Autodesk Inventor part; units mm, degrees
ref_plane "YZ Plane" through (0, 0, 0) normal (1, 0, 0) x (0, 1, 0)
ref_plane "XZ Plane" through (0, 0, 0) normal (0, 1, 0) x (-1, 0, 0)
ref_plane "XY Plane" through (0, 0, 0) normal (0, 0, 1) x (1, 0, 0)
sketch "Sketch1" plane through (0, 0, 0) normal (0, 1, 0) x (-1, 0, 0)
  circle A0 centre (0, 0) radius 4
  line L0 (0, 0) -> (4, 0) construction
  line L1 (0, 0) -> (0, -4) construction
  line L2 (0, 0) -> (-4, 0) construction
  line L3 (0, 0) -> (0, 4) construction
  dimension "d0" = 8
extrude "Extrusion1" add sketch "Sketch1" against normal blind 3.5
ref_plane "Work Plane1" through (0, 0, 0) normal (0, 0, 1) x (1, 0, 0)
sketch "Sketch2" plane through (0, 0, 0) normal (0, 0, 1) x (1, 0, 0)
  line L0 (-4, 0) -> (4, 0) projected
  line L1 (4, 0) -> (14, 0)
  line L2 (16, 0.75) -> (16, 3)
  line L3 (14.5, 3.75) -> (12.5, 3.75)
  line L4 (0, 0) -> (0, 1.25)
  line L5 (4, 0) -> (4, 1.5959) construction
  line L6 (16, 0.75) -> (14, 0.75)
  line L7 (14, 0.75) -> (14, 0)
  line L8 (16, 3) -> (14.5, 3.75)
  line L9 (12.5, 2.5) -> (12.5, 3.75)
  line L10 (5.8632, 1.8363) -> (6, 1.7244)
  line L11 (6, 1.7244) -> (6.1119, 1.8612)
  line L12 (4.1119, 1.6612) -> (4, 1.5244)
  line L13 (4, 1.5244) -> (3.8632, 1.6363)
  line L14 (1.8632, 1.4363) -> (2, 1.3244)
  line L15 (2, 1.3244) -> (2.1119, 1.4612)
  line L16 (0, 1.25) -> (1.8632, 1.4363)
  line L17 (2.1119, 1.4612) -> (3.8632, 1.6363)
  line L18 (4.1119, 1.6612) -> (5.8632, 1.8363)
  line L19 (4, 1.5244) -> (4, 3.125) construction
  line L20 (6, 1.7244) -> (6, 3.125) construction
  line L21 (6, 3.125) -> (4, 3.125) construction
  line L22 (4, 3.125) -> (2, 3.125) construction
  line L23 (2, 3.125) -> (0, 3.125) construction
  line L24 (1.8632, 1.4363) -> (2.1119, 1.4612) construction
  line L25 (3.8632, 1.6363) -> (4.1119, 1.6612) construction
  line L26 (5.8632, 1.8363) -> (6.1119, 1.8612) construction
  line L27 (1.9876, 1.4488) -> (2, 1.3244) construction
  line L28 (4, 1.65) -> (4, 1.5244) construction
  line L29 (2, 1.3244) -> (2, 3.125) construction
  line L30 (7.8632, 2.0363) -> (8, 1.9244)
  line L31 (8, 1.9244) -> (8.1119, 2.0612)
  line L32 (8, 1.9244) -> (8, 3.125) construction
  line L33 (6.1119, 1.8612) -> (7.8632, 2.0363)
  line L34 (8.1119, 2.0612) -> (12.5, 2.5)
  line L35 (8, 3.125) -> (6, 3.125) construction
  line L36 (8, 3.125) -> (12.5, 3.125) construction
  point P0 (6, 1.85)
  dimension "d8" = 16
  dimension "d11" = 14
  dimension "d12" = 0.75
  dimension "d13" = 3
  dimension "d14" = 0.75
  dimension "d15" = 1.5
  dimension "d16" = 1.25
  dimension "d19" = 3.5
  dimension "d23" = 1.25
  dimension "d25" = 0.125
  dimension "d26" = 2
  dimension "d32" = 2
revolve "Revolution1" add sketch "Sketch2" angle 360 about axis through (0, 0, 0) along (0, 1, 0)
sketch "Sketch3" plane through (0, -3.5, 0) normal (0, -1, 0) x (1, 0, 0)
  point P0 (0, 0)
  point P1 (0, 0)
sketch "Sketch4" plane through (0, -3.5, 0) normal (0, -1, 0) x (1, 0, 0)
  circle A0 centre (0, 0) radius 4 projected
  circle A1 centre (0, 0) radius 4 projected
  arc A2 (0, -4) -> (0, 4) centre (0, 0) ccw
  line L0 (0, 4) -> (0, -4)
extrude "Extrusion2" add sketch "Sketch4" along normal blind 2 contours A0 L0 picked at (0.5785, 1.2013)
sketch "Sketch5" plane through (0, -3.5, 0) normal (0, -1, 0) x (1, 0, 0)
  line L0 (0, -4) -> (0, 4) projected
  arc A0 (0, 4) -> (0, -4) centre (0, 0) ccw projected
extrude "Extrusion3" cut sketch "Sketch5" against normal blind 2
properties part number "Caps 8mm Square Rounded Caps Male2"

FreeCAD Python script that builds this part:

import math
import FreeCAD as App
import Part
import Sketcher
from FreeCAD import Vector
Q = App.Units.Quantity

doc = App.newDocument("Part")
body = doc.addObject("PartDesign::Body", "Body")

sketch1 = body.newObject("Sketcher::SketchObject", "Sketch")
sketch1.AttachmentSupport = (doc.getObject("XZ_Plane"), [""])
sketch1.MapMode = "FlatFace"
sketch1.addGeometry(Part.Circle(Vector(0, 0, 0), Vector(0, 0, 1), 4), False)
sketch1.addConstraint(Sketcher.Constraint("Coincident", 0, 3, -1, 1))
sketch1.addConstraint(Sketcher.Constraint("Diameter", 0, Q("8 mm")))
pad1 = body.newObject("PartDesign::Pad", "Pad")
pad1.Profile = sketch1
pad1.Length = 3.5

sketch2 = body.newObject("Sketcher::SketchObject", "Sketch001")
sketch2.AttachmentSupport = (doc.getObject("XY_Plane"), [""])
sketch2.MapMode = "FlatFace"
sketch2.addGeometry(Part.LineSegment(Vector(0, 1.25, 0), Vector(0, 0, 0)), False)
sketch2.addGeometry(Part.LineSegment(Vector(0, 0, 0), Vector(14, 0, 0)), False)
sketch2.addGeometry(Part.LineSegment(Vector(14, 0, 0), Vector(14, 0.75, 0)), False)
sketch2.addGeometry(Part.LineSegment(Vector(14, 0.75, 0), Vector(16, 0.75, 0)), False)
sketch2.addGeometry(Part.LineSegment(Vector(16, 0.75, 0), Vector(16, 3, 0)), False)
sketch2.addGeometry(Part.LineSegment(Vector(16, 3, 0), Vector(14.5, 3.75, 0)), False)
sketch2.addGeometry(Part.LineSegment(Vector(14.5, 3.75, 0), Vector(12.5, 3.75, 0)), False)
sketch2.addGeometry(Part.LineSegment(Vector(12.5, 3.75, 0), Vector(12.5, 2.5, 0)), False)
sketch2.addGeometry(Part.LineSegment(Vector(12.5, 2.5, 0), Vector(8.11, 2.06, 0)), False)
sketch2.addGeometry(Part.LineSegment(Vector(8.11, 2.06, 0), Vector(8, 1.92, 0)), False)
sketch2.addGeometry(Part.LineSegment(Vector(8, 1.92, 0), Vector(7.86, 2.04, 0)), False)
sketch2.addGeometry(Part.LineSegment(Vector(7.86, 2.04, 0), Vector(6.11, 1.86, 0)), False)
sketch2.addGeometry(Part.LineSegment(Vector(6.11, 1.86, 0), Vector(6, 1.72, 0)), False)
sketch2.addGeometry(Part.LineSegment(Vector(6, 1.72, 0), Vector(5.86, 1.84, 0)), False)
sketch2.addGeometry(Part.LineSegment(Vector(5.86, 1.84, 0), Vector(4.11, 1.66, 0)), False)
sketch2.addGeometry(Part.LineSegment(Vector(4.11, 1.66, 0), Vector(4, 1.52, 0)), False)
sketch2.addGeometry(Part.LineSegment(Vector(4, 1.52, 0), Vector(3.86, 1.64, 0)), False)
sketch2.addGeometry(Part.LineSegment(Vector(3.86, 1.64, 0), Vector(2.11, 1.46, 0)), False)
sketch2.addGeometry(Part.LineSegment(Vector(2.11, 1.46, 0), Vector(2, 1.32, 0)), False)
sketch2.addGeometry(Part.LineSegment(Vector(2, 1.32, 0), Vector(1.86, 1.44, 0)), False)
sketch2.addGeometry(Part.LineSegment(Vector(1.86, 1.44, 0), Vector(0, 1.25, 0)), False)
sketch2.addConstraint(Sketcher.Constraint("Coincident", 0, 2, 1, 1))
sketch2.addConstraint(Sketcher.Constraint("Coincident", 1, 2, 2, 1))
sketch2.addConstraint(Sketcher.Constraint("Coincident", 2, 2, 3, 1))
sketch2.addConstraint(Sketcher.Constraint("Coincident", 3, 2, 4, 1))
sketch2.addConstraint(Sketcher.Constraint("Coincident", 4, 2, 5, 1))
sketch2.addConstraint(Sketcher.Constraint("Coincident", 5, 2, 6, 1))
sketch2.addConstraint(Sketcher.Constraint("Coincident", 6, 2, 7, 1))
sketch2.addConstraint(Sketcher.Constraint("Coincident", 7, 2, 8, 1))
sketch2.addConstraint(Sketcher.Constraint("Coincident", 8, 2, 9, 1))
sketch2.addConstraint(Sketcher.Constraint("Coincident", 9, 2, 10, 1))
sketch2.addConstraint(Sketcher.Constraint("Coincident", 10, 2, 11, 1))
sketch2.addConstraint(Sketcher.Constraint("Coincident", 11, 2, 12, 1))
sketch2.addConstraint(Sketcher.Constraint("Coincident", 12, 2, 13, 1))
sketch2.addConstraint(Sketcher.Constraint("Coincident", 13, 2, 14, 1))
sketch2.addConstraint(Sketcher.Constraint("Coincident", 14, 2, 15, 1))
sketch2.addConstraint(Sketcher.Constraint("Coincident", 15, 2, 16, 1))
sketch2.addConstraint(Sketcher.Constraint("Coincident", 16, 2, 17, 1))
sketch2.addConstraint(Sketcher.Constraint("Coincident", 17, 2, 18, 1))
sketch2.addConstraint(Sketcher.Constraint("Coincident", 18, 2, 19, 1))
sketch2.addConstraint(Sketcher.Constraint("Coincident", 19, 2, 20, 1))
sketch2.addConstraint(Sketcher.Constraint("Coincident", 20, 2, 0, 1))
sketch2.addConstraint(Sketcher.Constraint("Vertical", 0))
sketch2.addConstraint(Sketcher.Constraint("Horizontal", 1))
sketch2.addConstraint(Sketcher.Constraint("Vertical", 2))
sketch2.addConstraint(Sketcher.Constraint("Horizontal", 3))
sketch2.addConstraint(Sketcher.Constraint("Vertical", 4))
sketch2.addConstraint(Sketcher.Constraint("Horizontal", 6))
sketch2.addConstraint(Sketcher.Constraint("Vertical", 7))
sketch2.addConstraint(Sketcher.Constraint("Coincident", 0, 2, -1, 1))
sketch2.addConstraint(Sketcher.Constraint("Perpendicular", 9, 10))
sketch2.addConstraint(Sketcher.Constraint("Parallel", 8, 11))
sketch2.addConstraint(Sketcher.Constraint("Perpendicular", 10, 12))
sketch2.addConstraint(Sketcher.Constraint("Perpendicular", 12, 13))
sketch2.addConstraint(Sketcher.Constraint("Parallel", 11, 14))
sketch2.addConstraint(Sketcher.Constraint("Perpendicular", 13, 15))
sketch2.addConstraint(Sketcher.Constraint("Perpendicular", 15, 16))
sketch2.addConstraint(Sketcher.Constraint("Parallel", 14, 17))
sketch2.addConstraint(Sketcher.Constraint("Perpendicular", 16, 18))
sketch2.addConstraint(Sketcher.Constraint("Perpendicular", 18, 19))
sketch2.addConstraint(Sketcher.Constraint("Parallel", 17, 20))
sketch2.addConstraint(Sketcher.Constraint("Equal", 3, 6))
sketch2.addConstraint(Sketcher.Constraint("Equal", 0, 7))
sketch2.addConstraint(Sketcher.Constraint("Equal", 9, 10))
sketch2.addConstraint(Sketcher.Constraint("Equal", 10, 12))
sketch2.addConstraint(Sketcher.Constraint("Equal", 12, 13))
sketch2.addConstraint(Sketcher.Constraint("Equal", 11, 14))
sketch2.addConstraint(Sketcher.Constraint("Equal", 13, 15))
sketch2.addConstraint(Sketcher.Constraint("Equal", 15, 16))
sketch2.addConstraint(Sketcher.Constraint("Equal", 14, 17))
sketch2.addConstraint(Sketcher.Constraint("Equal", 16, 18))
sketch2.addConstraint(Sketcher.Constraint("Equal", 18, 19))
sketch2.addConstraint(Sketcher.Constraint("DistanceX", 1, 1, 1, 2, Q("14 mm")))
sketch2.addConstraint(Sketcher.Constraint("DistanceX", 3, 1, 3, 2, Q("2 mm")))
sketch2.addConstraint(Sketcher.Constraint("DistanceY", -1, 1, 4, 2, Q("3 mm")))
sketch2.addConstraint(Sketcher.Constraint("DistanceX", -1, 1, 18, 2, Q("2 mm")))
sketch2.addConstraint(Sketcher.Constraint("DistanceY", 2, 2, 5, 2, Q("3 mm")))
sketch2.addConstraint(Sketcher.Constraint("DistanceX", 11, 2, 8, 2, Q("2 mm")))
sketch2.addConstraint(Sketcher.Constraint("DistanceY", 0, 2, 0, 1, Q("1.25 mm")))
sketch2.addConstraint(Sketcher.Constraint("DistanceY", 2, 1, 2, 2, Q("0.75 mm")))
sketch2.addConstraint(Sketcher.Constraint("DistanceX", 5, 2, 4, 2, Q("1.5 mm")))
sketch2.addConstraint(Sketcher.Constraint("Angle", 8, Q("-174.2895 deg")))
sketch2.addConstraint(Sketcher.Constraint("Distance", 8, Q("4.41 mm")))
revolution = body.newObject("PartDesign::Revolution", "Revolution")
revolution.Profile = sketch2
revolution.ReferenceAxis = (sketch2, ["V_Axis"])
revolution.Angle = 360

sketch3 = body.newObject("Sketcher::SketchObject", "Sketch002")
sketch3.AttachmentSupport = (doc.getObject("XZ_Plane"), [""])
sketch3.MapMode = "FlatFace"
sketch3.AttachmentOffset = App.Placement(Vector(0, 0, 3.5), App.Rotation())
sketch3.addGeometry(Part.ArcOfCircle(Part.Circle(Vector(0, 0, 0), Vector(0, 0, 1), 4), math.radians(-90), math.radians(90)), False)
sketch3.addGeometry(Part.LineSegment(Vector(0, 4, 0), Vector(0, -4, 0)), False)
sketch3.addConstraint(Sketcher.Constraint("Coincident", 0, 1, 1, 2))
sketch3.addConstraint(Sketcher.Constraint("Coincident", 1, 1, 0, 2))
sketch3.addConstraint(Sketcher.Constraint("Vertical", 1))
sketch3.addConstraint(Sketcher.Constraint("Coincident", 0, 3, -1, 1))
sketch3.addConstraint(Sketcher.Constraint("PointOnObject", 0, 1, -2))
sketch3.addConstraint(Sketcher.Constraint("Radius", 0, Q("4 mm")))
pad2 = body.newObject("PartDesign::Pad", "Pad001")
pad2.Profile = sketch3
pad2.Length = 2

sketch4 = body.newObject("Sketcher::SketchObject", "Sketch003")
sketch4.AttachmentSupport = (doc.getObject("XZ_Plane"), [""])
sketch4.MapMode = "FlatFace"
sketch4.AttachmentOffset = App.Placement(Vector(0, 0, 3.5), App.Rotation())
sketch4.addGeometry(Part.ArcOfCircle(Part.Circle(Vector(0, 0, 0), Vector(0, 0, 1), 4), math.radians(90), math.radians(270)), False)
sketch4.addGeometry(Part.LineSegment(Vector(0, -4, 0), Vector(0, 4, 0)), False)
sketch4.addConstraint(Sketcher.Constraint("Coincident", 0, 1, 1, 2))
sketch4.addConstraint(Sketcher.Constraint("Coincident", 1, 1, 0, 2))
sketch4.addConstraint(Sketcher.Constraint("Vertical", 1))
sketch4.addConstraint(Sketcher.Constraint("Coincident", 0, 3, -1, 1))
sketch4.addConstraint(Sketcher.Constraint("PointOnObject", 0, 1, -2))
sketch4.addConstraint(Sketcher.Constraint("Radius", 0, Q("4 mm")))
pocket1 = body.newObject("PartDesign::Pocket", "Pocket")
pocket1.Profile = sketch4
pocket1.Length = 2

doc.recompute()
